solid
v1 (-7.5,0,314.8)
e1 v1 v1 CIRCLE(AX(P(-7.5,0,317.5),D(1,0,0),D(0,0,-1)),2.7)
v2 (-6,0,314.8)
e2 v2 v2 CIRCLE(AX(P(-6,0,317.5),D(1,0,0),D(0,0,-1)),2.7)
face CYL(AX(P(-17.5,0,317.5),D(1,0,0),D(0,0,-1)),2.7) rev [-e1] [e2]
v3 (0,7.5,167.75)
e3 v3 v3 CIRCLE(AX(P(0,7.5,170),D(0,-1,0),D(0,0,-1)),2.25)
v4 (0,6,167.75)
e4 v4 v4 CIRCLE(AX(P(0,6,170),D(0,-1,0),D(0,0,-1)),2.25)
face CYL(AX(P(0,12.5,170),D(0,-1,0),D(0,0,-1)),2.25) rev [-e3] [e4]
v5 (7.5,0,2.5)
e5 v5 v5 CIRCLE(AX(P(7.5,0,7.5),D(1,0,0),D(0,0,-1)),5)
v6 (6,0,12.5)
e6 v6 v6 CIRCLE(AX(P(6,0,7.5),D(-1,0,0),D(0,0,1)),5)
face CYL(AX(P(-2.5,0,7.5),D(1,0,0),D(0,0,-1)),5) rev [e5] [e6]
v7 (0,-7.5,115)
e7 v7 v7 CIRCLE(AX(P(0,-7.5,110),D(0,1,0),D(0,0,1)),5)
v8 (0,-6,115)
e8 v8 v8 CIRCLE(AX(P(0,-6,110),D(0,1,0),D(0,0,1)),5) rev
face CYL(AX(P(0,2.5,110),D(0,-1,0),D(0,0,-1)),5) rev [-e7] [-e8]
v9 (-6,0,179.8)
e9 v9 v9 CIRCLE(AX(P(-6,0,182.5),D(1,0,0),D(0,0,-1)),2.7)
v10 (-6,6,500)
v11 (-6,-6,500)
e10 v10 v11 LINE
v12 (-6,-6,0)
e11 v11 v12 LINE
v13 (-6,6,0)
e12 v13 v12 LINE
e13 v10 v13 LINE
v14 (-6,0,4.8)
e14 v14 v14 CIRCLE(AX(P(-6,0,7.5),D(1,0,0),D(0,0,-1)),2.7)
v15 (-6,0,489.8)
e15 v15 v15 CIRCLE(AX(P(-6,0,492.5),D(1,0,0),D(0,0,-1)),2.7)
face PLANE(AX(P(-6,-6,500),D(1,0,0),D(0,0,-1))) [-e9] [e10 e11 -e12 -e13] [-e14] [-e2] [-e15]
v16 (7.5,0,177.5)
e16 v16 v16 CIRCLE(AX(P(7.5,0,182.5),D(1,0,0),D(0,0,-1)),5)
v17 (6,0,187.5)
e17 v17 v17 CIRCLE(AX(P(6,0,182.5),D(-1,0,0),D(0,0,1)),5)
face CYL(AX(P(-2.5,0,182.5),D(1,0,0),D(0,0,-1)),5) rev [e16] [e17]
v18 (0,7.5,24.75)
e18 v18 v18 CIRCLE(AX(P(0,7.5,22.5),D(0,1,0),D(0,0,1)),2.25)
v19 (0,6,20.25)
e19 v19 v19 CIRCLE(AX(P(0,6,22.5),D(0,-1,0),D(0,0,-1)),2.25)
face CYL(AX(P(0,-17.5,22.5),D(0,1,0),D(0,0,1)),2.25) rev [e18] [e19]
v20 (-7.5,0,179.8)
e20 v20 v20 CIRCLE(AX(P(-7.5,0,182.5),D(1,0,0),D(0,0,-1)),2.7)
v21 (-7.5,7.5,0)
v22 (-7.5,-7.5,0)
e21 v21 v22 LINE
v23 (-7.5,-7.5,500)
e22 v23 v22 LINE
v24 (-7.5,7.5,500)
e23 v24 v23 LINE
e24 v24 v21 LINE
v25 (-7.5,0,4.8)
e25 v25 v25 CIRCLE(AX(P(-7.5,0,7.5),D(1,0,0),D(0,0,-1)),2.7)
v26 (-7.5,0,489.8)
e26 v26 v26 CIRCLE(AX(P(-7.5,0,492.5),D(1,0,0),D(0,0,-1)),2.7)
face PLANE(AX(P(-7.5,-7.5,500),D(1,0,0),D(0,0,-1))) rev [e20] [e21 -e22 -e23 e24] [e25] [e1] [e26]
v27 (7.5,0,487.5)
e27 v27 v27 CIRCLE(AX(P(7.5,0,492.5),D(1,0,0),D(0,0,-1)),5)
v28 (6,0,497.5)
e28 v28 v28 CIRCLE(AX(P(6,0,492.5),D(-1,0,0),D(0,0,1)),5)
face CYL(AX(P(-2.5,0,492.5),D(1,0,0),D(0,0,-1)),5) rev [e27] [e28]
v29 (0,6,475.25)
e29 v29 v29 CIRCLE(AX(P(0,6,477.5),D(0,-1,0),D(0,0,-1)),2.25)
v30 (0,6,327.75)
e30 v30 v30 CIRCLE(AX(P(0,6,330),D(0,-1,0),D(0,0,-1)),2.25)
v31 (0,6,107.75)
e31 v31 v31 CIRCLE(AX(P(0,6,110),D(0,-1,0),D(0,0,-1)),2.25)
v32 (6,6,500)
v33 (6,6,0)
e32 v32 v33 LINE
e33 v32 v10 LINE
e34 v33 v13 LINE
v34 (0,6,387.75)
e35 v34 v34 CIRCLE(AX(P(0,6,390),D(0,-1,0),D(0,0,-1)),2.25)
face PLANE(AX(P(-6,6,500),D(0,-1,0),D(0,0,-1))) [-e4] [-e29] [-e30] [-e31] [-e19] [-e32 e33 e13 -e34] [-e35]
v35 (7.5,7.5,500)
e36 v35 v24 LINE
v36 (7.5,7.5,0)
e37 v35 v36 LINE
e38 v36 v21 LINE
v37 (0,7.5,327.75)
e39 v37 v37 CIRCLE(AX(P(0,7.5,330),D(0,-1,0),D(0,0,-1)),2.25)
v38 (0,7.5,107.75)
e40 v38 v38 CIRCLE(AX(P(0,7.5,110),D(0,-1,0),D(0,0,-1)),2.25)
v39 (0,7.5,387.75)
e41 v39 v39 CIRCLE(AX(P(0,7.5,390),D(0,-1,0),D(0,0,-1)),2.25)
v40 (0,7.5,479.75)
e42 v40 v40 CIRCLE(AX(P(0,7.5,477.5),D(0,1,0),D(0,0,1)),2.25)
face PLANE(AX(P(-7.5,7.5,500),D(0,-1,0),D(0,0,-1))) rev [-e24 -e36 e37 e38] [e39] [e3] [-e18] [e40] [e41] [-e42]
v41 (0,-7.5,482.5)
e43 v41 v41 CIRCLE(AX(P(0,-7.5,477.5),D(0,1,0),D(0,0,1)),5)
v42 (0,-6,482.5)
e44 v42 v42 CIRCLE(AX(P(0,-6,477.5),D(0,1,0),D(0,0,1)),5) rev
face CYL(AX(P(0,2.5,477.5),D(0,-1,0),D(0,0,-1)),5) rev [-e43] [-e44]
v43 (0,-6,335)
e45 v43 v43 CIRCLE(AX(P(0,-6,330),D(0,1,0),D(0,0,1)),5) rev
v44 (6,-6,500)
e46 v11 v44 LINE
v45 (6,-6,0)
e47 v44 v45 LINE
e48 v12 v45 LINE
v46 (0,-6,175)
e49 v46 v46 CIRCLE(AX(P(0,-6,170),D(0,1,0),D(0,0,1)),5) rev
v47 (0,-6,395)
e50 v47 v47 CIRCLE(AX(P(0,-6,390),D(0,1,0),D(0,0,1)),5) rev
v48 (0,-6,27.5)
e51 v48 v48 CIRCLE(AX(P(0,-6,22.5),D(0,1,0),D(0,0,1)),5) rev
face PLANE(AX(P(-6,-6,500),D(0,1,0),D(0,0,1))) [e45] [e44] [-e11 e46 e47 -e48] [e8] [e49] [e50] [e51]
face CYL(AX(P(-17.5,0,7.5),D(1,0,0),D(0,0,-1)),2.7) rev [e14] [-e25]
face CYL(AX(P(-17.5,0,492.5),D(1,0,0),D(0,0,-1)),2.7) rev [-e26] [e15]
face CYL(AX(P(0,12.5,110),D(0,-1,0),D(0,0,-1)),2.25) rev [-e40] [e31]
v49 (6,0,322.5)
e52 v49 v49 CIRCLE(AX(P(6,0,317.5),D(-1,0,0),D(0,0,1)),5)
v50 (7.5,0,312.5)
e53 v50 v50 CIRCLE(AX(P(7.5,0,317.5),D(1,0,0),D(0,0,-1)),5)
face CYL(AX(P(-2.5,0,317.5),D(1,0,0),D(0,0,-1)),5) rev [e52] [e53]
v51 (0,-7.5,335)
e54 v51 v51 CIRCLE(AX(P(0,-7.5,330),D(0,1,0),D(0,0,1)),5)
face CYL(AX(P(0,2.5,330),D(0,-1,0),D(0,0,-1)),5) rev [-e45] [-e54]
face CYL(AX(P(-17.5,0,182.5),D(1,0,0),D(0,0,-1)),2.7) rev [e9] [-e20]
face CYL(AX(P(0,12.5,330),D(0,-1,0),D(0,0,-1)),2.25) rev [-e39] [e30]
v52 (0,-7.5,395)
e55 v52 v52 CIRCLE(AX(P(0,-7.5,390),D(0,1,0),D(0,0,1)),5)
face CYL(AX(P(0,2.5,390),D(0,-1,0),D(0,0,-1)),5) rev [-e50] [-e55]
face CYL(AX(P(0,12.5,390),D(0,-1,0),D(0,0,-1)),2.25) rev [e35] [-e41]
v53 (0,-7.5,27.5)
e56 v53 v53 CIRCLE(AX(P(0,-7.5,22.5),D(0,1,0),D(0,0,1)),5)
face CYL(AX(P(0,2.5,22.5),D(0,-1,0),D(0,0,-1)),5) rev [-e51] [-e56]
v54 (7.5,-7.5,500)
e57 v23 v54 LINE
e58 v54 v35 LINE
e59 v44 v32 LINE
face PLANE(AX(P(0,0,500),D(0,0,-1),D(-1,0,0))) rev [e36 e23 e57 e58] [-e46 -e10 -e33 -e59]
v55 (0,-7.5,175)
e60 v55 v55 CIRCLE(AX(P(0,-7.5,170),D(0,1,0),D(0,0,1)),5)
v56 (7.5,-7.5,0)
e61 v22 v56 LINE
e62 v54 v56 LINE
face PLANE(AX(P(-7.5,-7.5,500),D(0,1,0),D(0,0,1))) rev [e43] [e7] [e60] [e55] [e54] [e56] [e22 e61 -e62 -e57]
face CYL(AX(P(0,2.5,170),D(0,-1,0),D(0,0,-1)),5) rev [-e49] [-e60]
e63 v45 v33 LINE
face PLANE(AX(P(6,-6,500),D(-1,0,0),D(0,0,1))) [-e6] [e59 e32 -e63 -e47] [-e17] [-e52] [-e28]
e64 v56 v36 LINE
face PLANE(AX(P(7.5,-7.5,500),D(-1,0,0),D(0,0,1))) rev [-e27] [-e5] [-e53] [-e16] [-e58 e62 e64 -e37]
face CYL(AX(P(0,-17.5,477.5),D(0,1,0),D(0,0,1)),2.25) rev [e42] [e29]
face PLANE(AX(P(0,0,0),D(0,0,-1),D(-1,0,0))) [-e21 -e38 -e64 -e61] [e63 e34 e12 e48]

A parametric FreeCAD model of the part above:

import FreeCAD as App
import Part
import Sketcher

V = App.Vector


def add_polygon(sketch, points):
    """Adds a closed chain of lines whose ends are joined by coincident constraints."""
    first, n = sketch.GeometryCount, len(points)
    for a, b in zip(points, points[1:] + points[:1]):
        sketch.addGeometry(Part.LineSegment(App.Vector(*a, 0), App.Vector(*b, 0)), False)
    for i in range(n):
        sketch.addConstraint(Sketcher.Constraint("Coincident", first + i, 2, first + (i + 1) % n, 1))

doc = App.newDocument("Part")
body = doc.addObject("PartDesign::Body", "Body")

# Sketch on XY plane
sketch1 = body.newObject("Sketcher::SketchObject", "Sketch")
sketch1.AttachmentSupport = (doc.getObject("XY_Plane"), [""])
sketch1.MapMode = "FlatFace"
add_polygon(sketch1, [(-8, 8), (-8, -8), (8, -8), (8, 8)])  # lines 0-3
add_polygon(sketch1, [(6, -6), (-6, -6), (-6, 6), (6, 6)])  # lines 4-7
sketch1.addConstraint([
    Sketcher.Constraint("Vertical", 0),
    Sketcher.Constraint("Horizontal", 1),
    Sketcher.Constraint("Vertical", 2),
    Sketcher.Constraint("Horizontal", 3),
    Sketcher.Constraint("Horizontal", 4),
    Sketcher.Constraint("Vertical", 5),
    Sketcher.Constraint("Horizontal", 6),
    Sketcher.Constraint("Vertical", 7),
    Sketcher.Constraint("Symmetric", 0, 2, 2, 2, -1, 1),
    Sketcher.Constraint("Symmetric", 4, 2, 6, 2, -1, 1),
    Sketcher.Constraint("Equal", 3, 0),
    Sketcher.Constraint("Equal", 6, 5),
    Sketcher.Constraint("DistanceX", 1, 1, 1, 2, 15.0),
    Sketcher.Constraint("DistanceX", 4, 2, 4, 1, 12.0),
])
pad1 = body.newObject("PartDesign::Pad", "Pad")
pad1.Profile = sketch1
pad1.Length = 500

# Sketch on YZ plane
sketch2 = body.newObject("Sketcher::SketchObject", "Sketch001")
sketch2.AttachmentSupport = (doc.getObject("YZ_Plane"), [""])
sketch2.MapMode = "FlatFace"
sketch2.AttachmentOffset = App.Placement(V(0, 0, 7.5), App.Rotation())
sketch2.addGeometry([
    Part.Circle(V(0, 492.5, 0), V(0, 0, 1), 2.7),
    Part.Circle(V(0, 7.5, 0), V(0, 0, 1), 2.7),
    Part.Circle(V(0, 317.5, 0), V(0, 0, 1), 2.7),
    Part.Circle(V(0, 182.5, 0), V(0, 0, 1), 2.7),
], False)
sketch2.addConstraint([
    Sketcher.Constraint("Equal", 0, 1),
    Sketcher.Constraint("Equal", 1, 2),
    Sketcher.Constraint("Equal", 2, 3),
    Sketcher.Constraint("PointOnObject", 0, 3, -2),
    Sketcher.Constraint("PointOnObject", 1, 3, -2),
    Sketcher.Constraint("PointOnObject", 2, 3, -2),
    Sketcher.Constraint("PointOnObject", 3, 3, -2),
    Sketcher.Constraint("Diameter", 0, 5.4),
    Sketcher.Constraint("DistanceY", 1, 3, 0, 3, 485.0),
    Sketcher.Constraint("DistanceY", 2, 3, 0, 3, 175.0),
    Sketcher.Constraint("DistanceY", 3, 3, 2, 3, 135.0),
    Sketcher.Constraint("DistanceY", -1, 1, 0, 3, 492.5),
])
pocket1 = body.newObject("PartDesign::Pocket", "Pocket")
pocket1.Profile = sketch2
pocket1.Length = 25

# Sketch on XZ plane
sketch3 = body.newObject("Sketcher::SketchObject", "Sketch002")
sketch3.AttachmentSupport = (doc.getObject("XZ_Plane"), [""])
sketch3.MapMode = "FlatFace"
sketch3.AttachmentOffset = App.Placement(V(0, 0, -7.5), App.Rotation())
sketch3.addGeometry([
    Part.Circle(V(0, 22.5, 0), V(0, 0, 1), 2.2),
    Part.Circle(V(0, 477.5, 0), V(0, 0, 1), 2.2),
], False)
sketch3.addConstraint([
    Sketcher.Constraint("Equal", 0, 1),
    Sketcher.Constraint("PointOnObject", 0, 3, -2),
    Sketcher.Constraint("PointOnObject", 1, 3, -2),
    Sketcher.Constraint("Diameter", 0, 4.5),
    Sketcher.Constraint("DistanceY", 0, 3, 1, 3, 455.0),
    Sketcher.Constraint("DistanceY", -1, 1, 0, 3, 22.5),
])
pocket2 = body.newObject("PartDesign::Pocket", "Pocket001")
pocket2.Profile = sketch3
pocket2.Length = 25
pocket2.Reversed = True

# Sketch on XZ plane
sketch4 = body.newObject("Sketcher::SketchObject", "Sketch003")
sketch4.AttachmentSupport = (doc.getObject("XZ_Plane"), [""])
sketch4.MapMode = "FlatFace"
sketch4.AttachmentOffset = App.Placement(V(0, 0, 7.5), App.Rotation())
sketch4.addGeometry([
    Part.Circle(V(0, 390, 0), V(0, 0, 1), 2.2),
    Part.Circle(V(0, 330, 0), V(0, 0, 1), 2.2),
    Part.Circle(V(0, 110, 0), V(0, 0, 1), 2.2),
    Part.Circle(V(0, 170, 0), V(0, 0, 1), 2.2),
], False)
sketch4.addConstraint([
    Sketcher.Constraint("Equal", 0, 1),
    Sketcher.Constraint("Equal", 1, 2),
    Sketcher.Constraint("Equal", 2, 3),
    Sketcher.Constraint("PointOnObject", 0, 3, -2),
    Sketcher.Constraint("PointOnObject", 1, 3, -2),
    Sketcher.Constraint("PointOnObject", 2, 3, -2),
    Sketcher.Constraint("PointOnObject", 3, 3, -2),
    Sketcher.Constraint("Diameter", 0, 4.5),
    Sketcher.Constraint("DistanceY", -1, 1, 0, 3, 390.0),
    Sketcher.Constraint("DistanceY", -1, 1, 1, 3, 330.0),
    Sketcher.Constraint("DistanceY", -1, 1, 2, 3, 110.0),
    Sketcher.Constraint("DistanceY", -1, 1, 3, 3, 170.0),
])
pocket3 = body.newObject("PartDesign::Pocket", "Pocket002")
pocket3.Profile = sketch4
pocket3.Length = 20

# Sketch on XZ plane
sketch5 = body.newObject("Sketcher::SketchObject", "Sketch004")
sketch5.AttachmentSupport = (doc.getObject("XZ_Plane"), [""])
sketch5.MapMode = "FlatFace"
sketch5.AttachmentOffset = App.Placement(V(0, 0, 7.5), App.Rotation())
sketch5.addGeometry([
    Part.Circle(V(0, 22, 0), V(0, 0, 1), 5),  # 0
    Part.Circle(V(0, 478, 0), V(0, 0, 1), 5),  # 1
    Part.Circle(V(0, 390, 0), V(0, 0, 1), 5),  # 2
    Part.Circle(V(0, 330, 0), V(0, 0, 1), 5),  # 3
    Part.Circle(V(0, 110, 0), V(0, 0, 1), 5),  # 4
    Part.Circle(V(0, 170, 0), V(0, 0, 1), 5),  # 5
], False)
sketch5.addConstraint([
    Sketcher.Constraint("Equal", 0, 1),
    Sketcher.Constraint("Equal", 1, 2),
    Sketcher.Constraint("Equal", 2, 3),
    Sketcher.Constraint("Equal", 3, 4),
    Sketcher.Constraint("Equal", 4, 5),
    Sketcher.Constraint("PointOnObject", 0, 3, -2),
    Sketcher.Constraint("PointOnObject", 1, 3, -2),
    Sketcher.Constraint("PointOnObject", 2, 3, -2),
    Sketcher.Constraint("PointOnObject", 3, 3, -2),
    Sketcher.Constraint("PointOnObject", 4, 3, -2),
    Sketcher.Constraint("PointOnObject", 5, 3, -2),
    Sketcher.Constraint("Diameter", 0, 10.0),
    Sketcher.Constraint("DistanceY", -1, 1, 2, 3, 390.0),
    Sketcher.Constraint("DistanceY", -1, 1, 3, 3, 330.0),
    Sketcher.Constraint("DistanceY", -1, 1, 4, 3, 110.0),
    Sketcher.Constraint("DistanceY", -1, 1, 5, 3, 170.0),
    Sketcher.Constraint("DistanceY", 0, 3, 1, 3, 455.0),
    Sketcher.Constraint("DistanceY", -1, 1, 0, 3, 22.5),
])
pocket4 = body.newObject("PartDesign::Pocket", "Pocket003")
pocket4.Profile = sketch5
pocket4.Length = 10

# Sketch on YZ plane
sketch6 = body.newObject("Sketcher::SketchObject", "Sketch005")
sketch6.AttachmentSupport = (doc.getObject("YZ_Plane"), [""])
sketch6.MapMode = "FlatFace"
sketch6.AttachmentOffset = App.Placement(V(0, 0, 7.5), App.Rotation())
sketch6.addGeometry([
    Part.Circle(V(0, 492, 0), V(0, 0, 1), 5),
    Part.Circle(V(0, 318, 0), V(0, 0, 1), 5),
    Part.Circle(V(0, 182, 0), V(0, 0, 1), 5),
    Part.Circle(V(0, 8, 0), V(0, 0, 1), 5),
], False)
sketch6.addConstraint([
    Sketcher.Constraint("Equal", 0, 1),
    Sketcher.Constraint("Equal", 1, 2),
    Sketcher.Constraint("Equal", 2, 3),
    Sketcher.Constraint("PointOnObject", 0, 3, -2),
    Sketcher.Constraint("PointOnObject", 1, 3, -2),
    Sketcher.Constraint("PointOnObject", 2, 3, -2),
    Sketcher.Constraint("PointOnObject", 3, 3, -2),
    Sketcher.Constraint("Diameter", 0, 10.0),
    Sketcher.Constraint("DistanceY", 1, 3, 0, 3, 175.0),
    Sketcher.Constraint("DistanceY", 2, 3, 1, 3, 135.0),
    Sketcher.Constraint("DistanceY", 3, 3, 2, 3, 175.0),
    Sketcher.Constraint("DistanceY", -1, 1, 0, 3, 492.5),
])
pocket5 = body.newObject("PartDesign::Pocket", "Pocket004")
pocket5.Profile = sketch6
pocket5.Length = 10

doc.recompute()
